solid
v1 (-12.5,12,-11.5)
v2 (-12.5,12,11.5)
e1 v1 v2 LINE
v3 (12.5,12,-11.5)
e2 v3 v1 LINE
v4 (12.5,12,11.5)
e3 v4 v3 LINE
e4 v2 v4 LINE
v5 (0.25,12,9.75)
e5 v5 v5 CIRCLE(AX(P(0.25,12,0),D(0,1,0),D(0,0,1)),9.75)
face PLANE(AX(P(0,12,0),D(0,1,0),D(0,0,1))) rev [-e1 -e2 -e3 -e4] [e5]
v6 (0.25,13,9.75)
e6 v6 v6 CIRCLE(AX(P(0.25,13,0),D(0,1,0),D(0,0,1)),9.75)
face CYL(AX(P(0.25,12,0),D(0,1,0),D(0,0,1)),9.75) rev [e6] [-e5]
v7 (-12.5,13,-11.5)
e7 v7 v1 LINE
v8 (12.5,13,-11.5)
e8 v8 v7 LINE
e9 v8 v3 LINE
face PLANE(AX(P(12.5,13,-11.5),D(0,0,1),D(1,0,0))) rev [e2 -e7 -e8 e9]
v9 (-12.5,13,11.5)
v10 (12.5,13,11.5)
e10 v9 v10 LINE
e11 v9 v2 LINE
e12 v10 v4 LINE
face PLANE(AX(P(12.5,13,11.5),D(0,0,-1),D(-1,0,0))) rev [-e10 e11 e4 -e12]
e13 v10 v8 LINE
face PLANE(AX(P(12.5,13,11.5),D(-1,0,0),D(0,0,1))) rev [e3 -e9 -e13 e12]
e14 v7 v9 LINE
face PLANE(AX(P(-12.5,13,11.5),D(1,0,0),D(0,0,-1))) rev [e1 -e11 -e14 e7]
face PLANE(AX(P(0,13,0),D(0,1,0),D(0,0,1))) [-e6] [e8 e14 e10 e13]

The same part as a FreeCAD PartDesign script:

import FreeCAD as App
import Part
import Sketcher
from FreeCAD import Vector


def add_polygon(sketch, points):
    """Adds a closed chain of lines whose ends are joined by coincident constraints."""
    first, n = sketch.GeometryCount, len(points)
    for a, b in zip(points, points[1:] + points[:1]):
        sketch.addGeometry(Part.LineSegment(App.Vector(*a, 0), App.Vector(*b, 0)), False)
    for i in range(n):
        sketch.addConstraint(Sketcher.Constraint("Coincident", first + i, 2, first + (i + 1) % n, 1))

doc = App.newDocument("Part")
body = doc.addObject("PartDesign::Body", "Body")

sketch1 = body.newObject("Sketcher::SketchObject", "Sketch")
sketch1.AttachmentSupport = (doc.getObject("XZ_Plane"), [""])
sketch1.MapMode = "FlatFace"
add_polygon(sketch1, [(-12.5, -11.5), (-12.5, 11.5), (12.5, 11.5), (12.5, -11.5)])
sketch1.addConstraint([
    Sketcher.Constraint("Vertical", 0),
    Sketcher.Constraint("Horizontal", 1),
    Sketcher.Constraint("Vertical", 2),
    Sketcher.Constraint("Horizontal", 3),
    Sketcher.Constraint("Symmetric", 0, 2, 2, 2, -1, 1),
    Sketcher.Constraint("DistanceX", 1, 1, 1, 2, 25.0),
    Sketcher.Constraint("DistanceY", 0, 1, 0, 2, 23.0),
])
pad1 = body.newObject("PartDesign::Pad", "Pad")
pad1.Profile = sketch1
pad1.Length = 12
pad1.Reversed = True

sketch2 = body.newObject("Sketcher::SketchObject", "Sketch001")
sketch2.AttachmentSupport = (doc.getObject("XZ_Plane"), [""])
sketch2.MapMode = "FlatFace"
sketch2.AttachmentOffset = App.Placement(Vector(0, 0, -1), App.Rotation())
add_polygon(sketch2, [(-11.5, -10.5), (-11.5, 10.5), (13.5, 10.5), (13.5, -10.5)])
sketch2.addConstraint([
    Sketcher.Constraint("Vertical", 0),
    Sketcher.Constraint("Horizontal", 1),
    Sketcher.Constraint("Vertical", 2),
    Sketcher.Constraint("Horizontal", 3),
    Sketcher.Constraint("DistanceX", 1, 1, 1, 2, 25.0),
    Sketcher.Constraint("DistanceY", 0, 1, 0, 2, 21.0),
    Sketcher.Constraint("DistanceX", 0, 2, -1, 1, 11.5),
    Sketcher.Constraint("DistanceY", -1, 1, 0, 2, 10.5),
])
pocket1 = body.newObject("PartDesign::Pocket", "Pocket")
pocket1.Profile = sketch2
pocket1.Length = 11

sketch3 = body.newObject("Sketcher::SketchObject", "Sketch002")
sketch3.AttachmentSupport = (doc.getObject("XZ_Plane"), [""])
sketch3.MapMode = "FlatFace"
add_polygon(sketch3, [(-12.5, 11.5), (-12.5, -11.5), (12.5, -11.5), (12.5, 11.5)])
sketch3.addConstraint([
    Sketcher.Constraint("Vertical", 0),
    Sketcher.Constraint("Horizontal", 1),
    Sketcher.Constraint("Vertical", 2),
    Sketcher.Constraint("Horizontal", 3),
    Sketcher.Constraint("Symmetric", 0, 2, 2, 2, -1, 1),
    Sketcher.Constraint("DistanceX", 1, 1, 1, 2, 25.0),
    Sketcher.Constraint("DistanceY", 0, 2, 0, 1, 23.0),
])
pocket2 = body.newObject("PartDesign::Pocket", "Pocket001")
pocket2.Profile = sketch3
pocket2.Length = 12
body2 = doc.addObject("PartDesign::Body", "Body001")

sketch4 = body2.newObject("Sketcher::SketchObject", "Sketch003")
sketch4.AttachmentSupport = (doc.getObject("XZ_Plane001"), [""])
sketch4.MapMode = "FlatFace"
sketch4.AttachmentOffset = App.Placement(Vector(0, 0, -12), App.Rotation())
add_polygon(sketch4, [(-12.5, -11.5), (-12.5, 11.5), (12.5, 11.5), (12.5, -11.5)])
sketch4.addConstraint([
    Sketcher.Constraint("Vertical", 0),
    Sketcher.Constraint("Horizontal", 1),
    Sketcher.Constraint("Vertical", 2),
    Sketcher.Constraint("Horizontal", 3),
    Sketcher.Constraint("Symmetric", 0, 2, 2, 2, -1, 1),
    Sketcher.Constraint("DistanceX", 1, 1, 1, 2, 25.0),
    Sketcher.Constraint("DistanceY", 0, 1, 0, 2, 23.0),
])
pad2 = body2.newObject("PartDesign::Pad", "Pad001")
pad2.Profile = sketch4
pad2.Length = 1
pad2.Reversed = True

sketch5 = body2.newObject("Sketcher::SketchObject", "Sketch004")
sketch5.AttachmentSupport = (doc.getObject("XZ_Plane001"), [""])
sketch5.MapMode = "FlatFace"
sketch5.AttachmentOffset = App.Placement(Vector(0, 0, -13), App.Rotation())
sketch5.addGeometry(Part.Circle(Vector(0.25, 0, 0), Vector(0, 0, 1), 9.75), False)
sketch5.addConstraint([
    Sketcher.Constraint("PointOnObject", 0, 3, -1),
    Sketcher.Constraint("Diameter", 0, 19.5),
    Sketcher.Constraint("DistanceX", -1, 1, 0, 3, 0.25),
])
pocket3 = body2.newObject("PartDesign::Pocket", "Pocket002")
pocket3.Profile = sketch5
pocket3.Length = 1
pocket3.Reversed = True

doc.recompute()
